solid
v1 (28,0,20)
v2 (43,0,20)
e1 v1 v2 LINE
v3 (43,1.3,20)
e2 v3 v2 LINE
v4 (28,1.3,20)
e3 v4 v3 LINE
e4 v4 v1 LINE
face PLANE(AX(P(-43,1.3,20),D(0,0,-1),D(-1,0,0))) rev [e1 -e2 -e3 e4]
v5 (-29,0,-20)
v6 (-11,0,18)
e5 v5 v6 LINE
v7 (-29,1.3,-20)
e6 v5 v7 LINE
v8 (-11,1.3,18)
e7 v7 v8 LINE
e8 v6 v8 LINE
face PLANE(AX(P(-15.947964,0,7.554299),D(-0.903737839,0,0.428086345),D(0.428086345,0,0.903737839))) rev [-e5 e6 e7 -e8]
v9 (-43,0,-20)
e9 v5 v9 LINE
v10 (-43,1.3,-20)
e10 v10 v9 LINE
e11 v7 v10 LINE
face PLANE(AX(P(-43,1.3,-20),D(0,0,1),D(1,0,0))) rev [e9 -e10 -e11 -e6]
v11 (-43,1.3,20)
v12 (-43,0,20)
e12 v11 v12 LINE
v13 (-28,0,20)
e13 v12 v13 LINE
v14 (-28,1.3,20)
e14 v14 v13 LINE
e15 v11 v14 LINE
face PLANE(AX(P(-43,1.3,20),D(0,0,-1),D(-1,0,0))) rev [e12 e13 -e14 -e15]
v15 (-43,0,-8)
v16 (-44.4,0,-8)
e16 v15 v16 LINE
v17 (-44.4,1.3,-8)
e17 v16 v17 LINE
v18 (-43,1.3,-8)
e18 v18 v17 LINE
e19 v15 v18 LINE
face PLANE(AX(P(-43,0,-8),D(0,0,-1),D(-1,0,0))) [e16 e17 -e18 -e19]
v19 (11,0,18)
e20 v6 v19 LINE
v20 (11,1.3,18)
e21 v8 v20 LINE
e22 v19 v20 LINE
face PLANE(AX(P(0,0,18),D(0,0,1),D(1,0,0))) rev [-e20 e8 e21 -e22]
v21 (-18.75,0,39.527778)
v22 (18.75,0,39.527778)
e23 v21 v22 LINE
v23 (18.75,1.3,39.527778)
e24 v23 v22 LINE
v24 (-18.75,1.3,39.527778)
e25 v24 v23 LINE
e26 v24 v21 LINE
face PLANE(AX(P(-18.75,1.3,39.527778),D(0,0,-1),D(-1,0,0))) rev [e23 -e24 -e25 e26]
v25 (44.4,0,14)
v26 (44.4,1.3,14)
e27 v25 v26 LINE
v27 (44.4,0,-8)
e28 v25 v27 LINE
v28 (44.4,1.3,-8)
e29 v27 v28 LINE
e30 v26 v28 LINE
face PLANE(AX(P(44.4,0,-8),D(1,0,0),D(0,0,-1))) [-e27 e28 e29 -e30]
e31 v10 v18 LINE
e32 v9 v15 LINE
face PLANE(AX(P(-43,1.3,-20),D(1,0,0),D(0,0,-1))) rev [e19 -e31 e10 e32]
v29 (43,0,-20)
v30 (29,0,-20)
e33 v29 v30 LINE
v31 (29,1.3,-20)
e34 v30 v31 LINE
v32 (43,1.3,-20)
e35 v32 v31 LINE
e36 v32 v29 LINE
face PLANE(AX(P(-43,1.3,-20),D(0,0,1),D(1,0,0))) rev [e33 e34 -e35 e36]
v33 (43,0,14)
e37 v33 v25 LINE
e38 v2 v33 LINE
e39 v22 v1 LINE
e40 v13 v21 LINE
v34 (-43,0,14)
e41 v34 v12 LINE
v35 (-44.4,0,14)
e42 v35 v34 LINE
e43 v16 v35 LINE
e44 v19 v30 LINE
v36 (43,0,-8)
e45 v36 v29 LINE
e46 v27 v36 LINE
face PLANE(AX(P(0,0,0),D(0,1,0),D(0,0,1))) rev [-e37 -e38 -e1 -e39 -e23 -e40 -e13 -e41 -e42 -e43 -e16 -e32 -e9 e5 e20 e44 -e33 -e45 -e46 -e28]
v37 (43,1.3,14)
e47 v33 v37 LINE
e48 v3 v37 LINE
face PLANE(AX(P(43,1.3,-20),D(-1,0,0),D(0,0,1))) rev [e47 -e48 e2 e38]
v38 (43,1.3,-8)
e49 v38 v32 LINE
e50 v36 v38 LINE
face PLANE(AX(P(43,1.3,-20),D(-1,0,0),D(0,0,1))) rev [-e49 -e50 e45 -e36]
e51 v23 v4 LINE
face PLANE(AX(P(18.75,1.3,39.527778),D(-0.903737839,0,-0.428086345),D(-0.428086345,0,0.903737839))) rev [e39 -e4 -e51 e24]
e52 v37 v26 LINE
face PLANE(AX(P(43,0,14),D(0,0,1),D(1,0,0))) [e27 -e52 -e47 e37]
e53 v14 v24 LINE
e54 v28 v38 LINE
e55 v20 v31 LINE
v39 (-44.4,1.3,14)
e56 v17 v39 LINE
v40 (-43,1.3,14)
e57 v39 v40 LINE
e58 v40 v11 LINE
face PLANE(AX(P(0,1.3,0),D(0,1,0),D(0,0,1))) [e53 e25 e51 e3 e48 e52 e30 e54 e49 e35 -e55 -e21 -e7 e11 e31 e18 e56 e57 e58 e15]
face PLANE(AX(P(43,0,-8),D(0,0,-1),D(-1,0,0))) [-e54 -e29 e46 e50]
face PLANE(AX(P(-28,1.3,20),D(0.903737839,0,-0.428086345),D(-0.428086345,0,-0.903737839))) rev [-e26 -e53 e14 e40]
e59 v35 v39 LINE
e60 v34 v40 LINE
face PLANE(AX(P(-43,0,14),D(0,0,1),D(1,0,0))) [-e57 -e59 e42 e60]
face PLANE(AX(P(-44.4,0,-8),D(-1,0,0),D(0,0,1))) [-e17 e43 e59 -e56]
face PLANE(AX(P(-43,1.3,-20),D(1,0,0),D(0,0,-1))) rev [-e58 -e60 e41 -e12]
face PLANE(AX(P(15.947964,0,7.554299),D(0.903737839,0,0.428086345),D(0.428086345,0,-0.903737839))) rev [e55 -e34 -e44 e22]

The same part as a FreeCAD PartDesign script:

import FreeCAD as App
import Part
import Sketcher
from FreeCAD import Vector

doc = App.newDocument("Part")
body = doc.addObject("PartDesign::Body", "Body")

# Sketch on XZ plane
sketch1 = doc.addObject("Sketcher::SketchObject", "Sketch")
body.addObject(sketch1)
sketch1.AttachmentSupport = (doc.XZ_Plane, [""])
sketch1.MapMode = "FlatFace"
sketch1.addGeometry([
    Part.LineSegment(Vector(-43, -20, 0), Vector(-43, 20, 0)),
    Part.LineSegment(Vector(-43, 20, 0), Vector(43, 20, 0)),
    Part.LineSegment(Vector(43, 20, 0), Vector(43, -20, 0)),
    Part.LineSegment(Vector(43, -20, 0), Vector(-43, -20, 0)),
], False)
sketch1.addConstraint([
    Sketcher.Constraint("Coincident", 0, 2, 1, 1),
    Sketcher.Constraint("Coincident", 1, 2, 2, 1),
    Sketcher.Constraint("Coincident", 2, 2, 3, 1),
    Sketcher.Constraint("Coincident", 3, 2, 0, 1),
    Sketcher.Constraint("Vertical", 0),
    Sketcher.Constraint("Horizontal", 1),
    Sketcher.Constraint("Vertical", 2),
    Sketcher.Constraint("Horizontal", 3),
    Sketcher.Constraint("Symmetric", 0, 2, 2, 2, -1, 1),
    Sketcher.Constraint("DistanceX", 1, 1, 1, 2, 86.0),
    Sketcher.Constraint("DistanceY", 0, 1, 0, 2, 40.0),
])
pad1 = doc.addObject("PartDesign::Pad", "Pad")
body.addObject(pad1)
pad1.Profile = sketch1
pad1.Length = 1.3
pad1.Reversed = True

# Sketch on XZ plane
sketch2 = doc.addObject("Sketcher::SketchObject", "Sketch001")
body.addObject(sketch2)
sketch2.AttachmentSupport = (doc.XZ_Plane, [""])
sketch2.MapMode = "FlatFace"
sketch2.AttachmentOffset = App.Placement(Vector(0, 0, -1.3), App.Rotation())
sketch2.addGeometry([
    Part.LineSegment(Vector(-44.4, -8, 0), Vector(-44.4, 14, 0)),  # 0
    Part.LineSegment(Vector(-44.4, 14, 0), Vector(-43, 14, 0)),  # 1
    Part.LineSegment(Vector(-43, 14, 0), Vector(-43, -8, 0)),  # 2
    Part.LineSegment(Vector(-43, -8, 0), Vector(-44.4, -8, 0)),  # 3
    Part.LineSegment(Vector(43, -8, 0), Vector(43, 14, 0)),  # 4
    Part.LineSegment(Vector(43, 14, 0), Vector(44.4, 14, 0)),  # 5
    Part.LineSegment(Vector(44.4, 14, 0), Vector(44.4, -8, 0)),  # 6
    Part.LineSegment(Vector(44.4, -8, 0), Vector(43, -8, 0)),  # 7
], False)
sketch2.addConstraint([
    Sketcher.Constraint("Coincident", 0, 2, 1, 1),
    Sketcher.Constraint("Coincident", 1, 2, 2, 1),
    Sketcher.Constraint("Coincident", 2, 2, 3, 1),
    Sketcher.Constraint("Coincident", 3, 2, 0, 1),
    Sketcher.Constraint("Coincident", 4, 2, 5, 1),
    Sketcher.Constraint("Coincident", 5, 2, 6, 1),
    Sketcher.Constraint("Coincident", 6, 2, 7, 1),
    Sketcher.Constraint("Coincident", 7, 2, 4, 1),
    Sketcher.Constraint("Vertical", 0),
    Sketcher.Constraint("Horizontal", 1),
    Sketcher.Constraint("Vertical", 2),
    Sketcher.Constraint("Horizontal", 3),
    Sketcher.Constraint("Vertical", 4),
    Sketcher.Constraint("Horizontal", 5),
    Sketcher.Constraint("Vertical", 6),
    Sketcher.Constraint("Horizontal", 7),
    Sketcher.Constraint("Symmetric", 1, 2, 4, 2, -2),
    Sketcher.Constraint("Symmetric", 3, 2, 6, 2, -2),
    Sketcher.Constraint("DistanceY", 0, 1, 0, 2, 22.0),
    Sketcher.Constraint("DistanceX", 1, 1, 1, 2, 1.4),
    Sketcher.Constraint("DistanceY", -1, 1, 0, 2, 14.0),
    Sketcher.Constraint("DistanceX", 1, 2, -1, 1, 43.0),
])
pad2 = doc.addObject("PartDesign::Pad", "Pad001")
body.addObject(pad2)
pad2.Profile = sketch2
pad2.Length = 1.3

# Sketch on XZ plane
sketch3 = doc.addObject("Sketcher::SketchObject", "Sketch002")
body.addObject(sketch3)
sketch3.AttachmentSupport = (doc.XZ_Plane, [""])
sketch3.MapMode = "FlatFace"
sketch3.AttachmentOffset = App.Placement(Vector(0, 0, -1.3), App.Rotation())
sketch3.addGeometry([
    Part.LineSegment(Vector(29, -20, 0), Vector(-29, -20, 0)),
    Part.LineSegment(Vector(-29, -20, 0), Vector(-11, 18, 0)),
    Part.LineSegment(Vector(-11, 18, 0), Vector(11, 18, 0)),
    Part.LineSegment(Vector(11, 18, 0), Vector(29, -20, 0)),
], False)
sketch3.addConstraint([
    Sketcher.Constraint("Coincident", 0, 2, 1, 1),
    Sketcher.Constraint("Coincident", 1, 2, 2, 1),
    Sketcher.Constraint("Coincident", 2, 2, 3, 1),
    Sketcher.Constraint("Coincident", 3, 2, 0, 1),
    Sketcher.Constraint("Horizontal", 0),
    Sketcher.Constraint("Horizontal", 2),
    Sketcher.Constraint("Equal", 1, 3),
    Sketcher.Constraint("DistanceX", 0, 2, 0, 1, 58.0),
    Sketcher.Constraint("DistanceX", 2, 1, 2, 2, 22.0),
    Sketcher.Constraint("DistanceX", 0, 2, -1, 1, 29.0),
    Sketcher.Constraint("DistanceY", 0, 2, -1, 1, 20.0),
    Sketcher.Constraint("DistanceY", -1, 1, 1, 2, 18.0),
])
pocket1 = doc.addObject("PartDesign::Pocket", "Pocket")
body.addObject(pocket1)
pocket1.Profile = sketch3
pocket1.Type = "ThroughAll"
pocket1.Reversed = True

# Sketch on XZ plane
sketch4 = doc.addObject("Sketcher::SketchObject", "Sketch003")
body.addObject(sketch4)
sketch4.AttachmentSupport = (doc.XZ_Plane, [""])
sketch4.MapMode = "FlatFace"
sketch4.addGeometry([
    Part.LineSegment(Vector(-28, 20, 0), Vector(-19, 40, 0)),
    Part.LineSegment(Vector(-19, 40, 0), Vector(19, 40, 0)),
    Part.LineSegment(Vector(19, 40, 0), Vector(28, 20, 0)),
    Part.LineSegment(Vector(28, 20, 0), Vector(-28, 20, 0)),
], False)
sketch4.addConstraint([
    Sketcher.Constraint("Coincident", 0, 2, 1, 1),
    Sketcher.Constraint("Coincident", 1, 2, 2, 1),
    Sketcher.Constraint("Coincident", 2, 2, 3, 1),
    Sketcher.Constraint("Coincident", 3, 2, 0, 1),
    Sketcher.Constraint("Horizontal", 1),
    Sketcher.Constraint("Horizontal", 3),
    Sketcher.Constraint("Equal", 0, 2),
    Sketcher.Constraint("DistanceX", 3, 2, 3, 1, 56.0),
    Sketcher.Constraint("DistanceX", 1, 1, 1, 2, 37.5),
    Sketcher.Constraint("DistanceX", -1, 1, 2, 2, 28.0),
    Sketcher.Constraint("DistanceY", -1, 1, 2, 2, 20.0),
    Sketcher.Constraint("Distance", 0, 21.60779),
])
pad3 = doc.addObject("PartDesign::Pad", "Pad002")
body.addObject(pad3)
pad3.Profile = sketch4
pad3.Length = 1.3
pad3.Reversed = True

doc.recompute()
